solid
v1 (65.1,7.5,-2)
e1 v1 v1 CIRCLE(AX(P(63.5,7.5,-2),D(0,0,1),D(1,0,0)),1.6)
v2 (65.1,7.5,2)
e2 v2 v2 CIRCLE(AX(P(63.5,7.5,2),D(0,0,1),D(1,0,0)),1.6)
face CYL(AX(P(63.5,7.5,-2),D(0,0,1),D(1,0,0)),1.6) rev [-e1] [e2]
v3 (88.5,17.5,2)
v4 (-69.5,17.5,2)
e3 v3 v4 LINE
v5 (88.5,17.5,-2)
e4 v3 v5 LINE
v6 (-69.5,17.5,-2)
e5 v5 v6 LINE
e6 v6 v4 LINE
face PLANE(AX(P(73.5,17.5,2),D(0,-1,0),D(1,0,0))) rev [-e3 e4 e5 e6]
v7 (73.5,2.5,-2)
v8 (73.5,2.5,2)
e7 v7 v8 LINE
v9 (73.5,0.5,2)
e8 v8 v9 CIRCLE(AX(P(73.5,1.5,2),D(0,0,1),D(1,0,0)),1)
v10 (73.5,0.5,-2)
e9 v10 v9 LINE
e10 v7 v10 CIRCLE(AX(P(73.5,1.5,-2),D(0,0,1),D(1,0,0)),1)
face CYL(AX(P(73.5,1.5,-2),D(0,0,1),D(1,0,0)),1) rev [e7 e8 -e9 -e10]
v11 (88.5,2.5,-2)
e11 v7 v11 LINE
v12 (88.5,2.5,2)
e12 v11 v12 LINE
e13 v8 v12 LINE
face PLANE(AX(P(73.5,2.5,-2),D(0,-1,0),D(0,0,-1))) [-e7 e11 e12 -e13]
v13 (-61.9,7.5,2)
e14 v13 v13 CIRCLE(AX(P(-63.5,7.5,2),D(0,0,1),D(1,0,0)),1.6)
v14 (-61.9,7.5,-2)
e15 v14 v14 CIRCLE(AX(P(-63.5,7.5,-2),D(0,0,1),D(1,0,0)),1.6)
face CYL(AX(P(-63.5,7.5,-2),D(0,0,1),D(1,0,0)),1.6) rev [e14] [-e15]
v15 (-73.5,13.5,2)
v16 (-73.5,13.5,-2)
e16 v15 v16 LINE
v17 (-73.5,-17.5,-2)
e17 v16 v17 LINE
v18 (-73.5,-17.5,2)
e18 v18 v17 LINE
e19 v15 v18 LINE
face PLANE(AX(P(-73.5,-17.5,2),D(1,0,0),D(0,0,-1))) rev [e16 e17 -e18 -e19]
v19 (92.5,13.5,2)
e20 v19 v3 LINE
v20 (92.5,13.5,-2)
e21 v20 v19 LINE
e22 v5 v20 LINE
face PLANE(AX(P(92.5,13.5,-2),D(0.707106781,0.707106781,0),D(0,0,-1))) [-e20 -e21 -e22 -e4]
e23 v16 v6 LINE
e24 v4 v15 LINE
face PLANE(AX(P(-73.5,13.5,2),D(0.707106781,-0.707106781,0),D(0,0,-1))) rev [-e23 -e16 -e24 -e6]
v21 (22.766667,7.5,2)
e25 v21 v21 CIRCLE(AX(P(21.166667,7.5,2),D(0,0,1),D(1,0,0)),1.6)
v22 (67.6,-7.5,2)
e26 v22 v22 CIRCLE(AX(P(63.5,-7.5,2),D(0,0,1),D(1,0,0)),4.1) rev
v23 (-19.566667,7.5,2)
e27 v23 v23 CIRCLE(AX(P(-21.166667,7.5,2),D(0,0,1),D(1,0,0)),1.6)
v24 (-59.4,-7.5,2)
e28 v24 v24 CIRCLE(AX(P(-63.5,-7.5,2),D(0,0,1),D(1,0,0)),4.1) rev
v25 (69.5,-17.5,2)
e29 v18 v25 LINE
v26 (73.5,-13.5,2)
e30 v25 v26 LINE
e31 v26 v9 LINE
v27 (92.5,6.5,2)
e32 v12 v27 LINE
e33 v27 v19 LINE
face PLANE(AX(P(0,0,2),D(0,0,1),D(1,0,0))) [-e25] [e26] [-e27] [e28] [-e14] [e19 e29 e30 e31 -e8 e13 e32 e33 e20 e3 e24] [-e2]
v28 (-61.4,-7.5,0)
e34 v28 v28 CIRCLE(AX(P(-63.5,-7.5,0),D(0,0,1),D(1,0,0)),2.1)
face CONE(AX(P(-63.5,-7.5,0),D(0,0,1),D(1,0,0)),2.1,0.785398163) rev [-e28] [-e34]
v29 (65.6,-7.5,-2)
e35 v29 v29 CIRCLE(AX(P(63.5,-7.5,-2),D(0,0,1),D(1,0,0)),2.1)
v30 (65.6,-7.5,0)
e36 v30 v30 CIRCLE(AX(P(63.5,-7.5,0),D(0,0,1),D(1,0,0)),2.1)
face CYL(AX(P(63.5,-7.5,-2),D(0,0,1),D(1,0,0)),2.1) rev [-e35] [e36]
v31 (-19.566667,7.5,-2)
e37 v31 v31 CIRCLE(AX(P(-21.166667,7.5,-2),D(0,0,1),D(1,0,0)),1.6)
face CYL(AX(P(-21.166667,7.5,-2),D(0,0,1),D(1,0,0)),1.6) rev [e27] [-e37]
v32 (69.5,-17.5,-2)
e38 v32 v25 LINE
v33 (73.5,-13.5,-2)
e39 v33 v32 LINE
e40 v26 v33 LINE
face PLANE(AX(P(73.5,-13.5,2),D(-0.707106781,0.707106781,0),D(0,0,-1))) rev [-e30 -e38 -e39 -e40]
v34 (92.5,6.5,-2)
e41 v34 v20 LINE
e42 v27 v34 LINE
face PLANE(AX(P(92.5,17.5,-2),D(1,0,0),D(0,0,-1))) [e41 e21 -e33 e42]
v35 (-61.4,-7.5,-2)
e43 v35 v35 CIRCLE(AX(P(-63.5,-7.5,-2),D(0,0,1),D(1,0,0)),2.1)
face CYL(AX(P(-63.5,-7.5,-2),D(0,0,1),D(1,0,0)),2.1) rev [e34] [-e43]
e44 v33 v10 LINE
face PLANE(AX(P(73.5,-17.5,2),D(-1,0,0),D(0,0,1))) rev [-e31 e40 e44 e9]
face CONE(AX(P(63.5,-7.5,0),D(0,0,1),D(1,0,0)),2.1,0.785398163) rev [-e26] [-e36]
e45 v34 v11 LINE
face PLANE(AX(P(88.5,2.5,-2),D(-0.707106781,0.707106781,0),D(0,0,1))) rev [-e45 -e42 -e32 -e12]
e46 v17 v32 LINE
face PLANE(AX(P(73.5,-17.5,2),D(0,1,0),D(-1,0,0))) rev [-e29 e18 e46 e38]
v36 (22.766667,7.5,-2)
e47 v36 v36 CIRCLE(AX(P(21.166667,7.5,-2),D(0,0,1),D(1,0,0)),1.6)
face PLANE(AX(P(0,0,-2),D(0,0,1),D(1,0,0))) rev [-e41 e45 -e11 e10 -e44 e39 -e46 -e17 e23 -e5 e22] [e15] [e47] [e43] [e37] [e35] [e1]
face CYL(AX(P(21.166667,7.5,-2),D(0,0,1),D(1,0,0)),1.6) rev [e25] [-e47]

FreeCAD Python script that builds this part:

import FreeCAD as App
import Part
import Sketcher
Q = App.Units.Quantity


def edges_at(feature, points):
    """Names of the edges that pass closest to the given points."""
    edges = feature.Shape.Edges
    near = lambda p: min(range(len(edges)), key=lambda i: edges[i].distToShape(Part.Vertex(*p))[0])
    return sorted({f"Edge{near(p) + 1}" for p in points})


def add_polygon(sketch, points):
    """Adds a closed chain of lines whose ends are joined by coincident constraints."""
    first, n = sketch.GeometryCount, len(points)
    for a, b in zip(points, points[1:] + points[:1]):
        sketch.addGeometry(Part.LineSegment(App.Vector(*a, 0), App.Vector(*b, 0)), False)
    for i in range(n):
        sketch.addConstraint(Sketcher.Constraint("Coincident", first + i, 2, first + (i + 1) % n, 1))

doc = App.newDocument("Part")
body = doc.addObject("PartDesign::Body", "Body")

# Sketch on XY plane
sketch1 = body.newObject("Sketcher::SketchObject", "Sketch")
sketch1.AttachmentSupport = (doc.getObject("XY_Plane"), [""])
sketch1.MapMode = "FlatFace"
add_polygon(sketch1, [(-74, 18), (-74, -18), (74, -18), (74, 18)])  # lines 0-3
sketch1.addConstraint(Sketcher.Constraint("Vertical", 0))
sketch1.addConstraint(Sketcher.Constraint("Horizontal", 1))
sketch1.addConstraint(Sketcher.Constraint("Vertical", 2))
sketch1.addConstraint(Sketcher.Constraint("Horizontal", 3))
sketch1.addConstraint(Sketcher.Constraint("Symmetric", 0, 2, 2, 2, -1, 1))
sketch1.addConstraint(Sketcher.Constraint("DistanceX", 1, 1, 1, 2, Q("147 mm")))
sketch1.addConstraint(Sketcher.Constraint("DistanceY", 0, 2, 0, 1, Q("35 mm")))
pad1 = body.newObject("PartDesign::Pad", "Pad")
pad1.Profile = sketch1
pad1.Length = 4
pad1.Midplane = True

# Sketch on XY plane
sketch2 = body.newObject("Sketcher::SketchObject", "Sketch001")
sketch2.AttachmentSupport = (doc.getObject("XY_Plane"), [""])
sketch2.MapMode = "FlatFace"
sketch2.AttachmentOffset = App.Placement(App.Vector(0, 0, 2), App.Rotation())
add_polygon(sketch2, [(74, 18), (74, 2), (92, 2), (92, 18)])  # lines 0-3
sketch2.addConstraint(Sketcher.Constraint("Vertical", 0))
sketch2.addConstraint(Sketcher.Constraint("Horizontal", 1))
sketch2.addConstraint(Sketcher.Constraint("Vertical", 2))
sketch2.addConstraint(Sketcher.Constraint("Horizontal", 3))
sketch2.addConstraint(Sketcher.Constraint("DistanceX", 1, 1, 1, 2, Q("19 mm")))
sketch2.addConstraint(Sketcher.Constraint("DistanceY", 0, 2, 0, 1, Q("15 mm")))
sketch2.addConstraint(Sketcher.Constraint("DistanceX", -1, 1, 0, 2, Q("73.5 mm")))
sketch2.addConstraint(Sketcher.Constraint("DistanceY", -1, 1, 0, 2, Q("2.5 mm")))
pad2 = body.newObject("PartDesign::Pad", "Pad001")
pad2.Profile = sketch2
pad2.Length = 4
pad2.Reversed = True

# Sketch on XY plane
sketch3 = body.newObject("Sketcher::SketchObject", "Sketch002")
sketch3.AttachmentSupport = (doc.getObject("XY_Plane"), [""])
sketch3.MapMode = "FlatFace"
sketch3.AttachmentOffset = App.Placement(App.Vector(0, 0, 2), App.Rotation())
sketch3.addGeometry(Part.Circle(App.Vector(-63.5, -7.5, 0), App.Vector(0, 0, 1), 2.1), False)
sketch3.addGeometry(Part.Circle(App.Vector(63.5, -7.5, 0), App.Vector(0, 0, 1), 2.1), False)
sketch3.addConstraint(Sketcher.Constraint("Equal", 0, 1))
sketch3.addConstraint(Sketcher.Constraint("Symmetric", 0, 3, 1, 3, -2))
sketch3.addConstraint(Sketcher.Constraint("Diameter", 0, Q("4.2 mm")))
sketch3.addConstraint(Sketcher.Constraint("DistanceX", 0, 3, 1, 3, Q("127 mm")))
sketch3.addConstraint(Sketcher.Constraint("DistanceY", 0, 3, -1, 1, Q("7.5 mm")))
pocket1 = body.newObject("PartDesign::Pocket", "Pocket")
pocket1.Profile = sketch3
pocket1.Type = "ThroughAll"
doc.recompute()

chamfer = body.newObject("PartDesign::Chamfer", "Chamfer")
chamfer.Base = (pocket1, edges_at(pocket1, [
    (92.5, 17.5, 0),
    (92.5, 2.5, 0),
    (-73.5, 17.5, 0),
    (73.5, -17.5, 0),
]))
chamfer.Size = 4

# Sketch on XY plane
sketch4 = body.newObject("Sketcher::SketchObject", "Sketch003")
sketch4.AttachmentSupport = (doc.getObject("XY_Plane"), [""])
sketch4.MapMode = "FlatFace"
sketch4.AttachmentOffset = App.Placement(App.Vector(0, 0, 2), App.Rotation())
sketch4.addGeometry(Part.Circle(App.Vector(73.5, 1.5, 0), App.Vector(0, 0, 1), 1), False)
sketch4.addConstraint(Sketcher.Constraint("Diameter", 0, Q("2 mm")))
sketch4.addConstraint(Sketcher.Constraint("DistanceX", -1, 1, 0, 3, Q("73.5 mm")))
sketch4.addConstraint(Sketcher.Constraint("DistanceY", -1, 1, 0, 3, Q("1.5 mm")))
pocket2 = body.newObject("PartDesign::Pocket", "Pocket001")
pocket2.Profile = sketch4
pocket2.Type = "ThroughAll"

# Sketch on XY plane
sketch5 = body.newObject("Sketcher::SketchObject", "Sketch004")
sketch5.AttachmentSupport = (doc.getObject("XY_Plane"), [""])
sketch5.MapMode = "FlatFace"
sketch5.AttachmentOffset = App.Placement(App.Vector(0, 0, 2), App.Rotation())
sketch5.addGeometry(Part.Circle(App.Vector(-63.5, 7.5, 0), App.Vector(0, 0, 1), 1.6), False)
sketch5.addGeometry(Part.Circle(App.Vector(-21.2, 7.5, 0), App.Vector(0, 0, 1), 1.6), False)
sketch5.addGeometry(Part.Circle(App.Vector(21.2, 7.5, 0), App.Vector(0, 0, 1), 1.6), False)
sketch5.addGeometry(Part.Circle(App.Vector(63.5, 7.5, 0), App.Vector(0, 0, 1), 1.6), False)
sketch5.addConstraint(Sketcher.Constraint("Equal", 0, 1))
sketch5.addConstraint(Sketcher.Constraint("Equal", 1, 2))
sketch5.addConstraint(Sketcher.Constraint("Equal", 2, 3))
sketch5.addConstraint(Sketcher.Constraint("Symmetric", 1, 3, 2, 3, -2))
sketch5.addConstraint(Sketcher.Constraint("Symmetric", 0, 3, 3, 3, -2))
sketch5.addConstraint(Sketcher.Constraint("Horizontal", 0, 3, 1, 3))
sketch5.addConstraint(Sketcher.Constraint("Diameter", 0, Q("3.2 mm")))
sketch5.addConstraint(Sketcher.Constraint("DistanceX", 0, 3, 3, 3, Q("127 mm")))
sketch5.addConstraint(Sketcher.Constraint("DistanceY", -1, 1, 0, 3, Q("7.5 mm")))
sketch5.addConstraint(Sketcher.Constraint("DistanceX", 1, 3, -1, 1, Q("21.166667 mm")))
pocket3 = body.newObject("PartDesign::Pocket", "Pocket002")
pocket3.Profile = sketch5
pocket3.Type = "ThroughAll"
doc.recompute()

chamfer2 = body.newObject("PartDesign::Chamfer", "Chamfer001")
chamfer2.Base = (pocket3, edges_at(pocket3, [(-65.6, -7.5, 2), (61.4, -7.5, 2)]))
chamfer2.Size = 2

doc.recompute()
